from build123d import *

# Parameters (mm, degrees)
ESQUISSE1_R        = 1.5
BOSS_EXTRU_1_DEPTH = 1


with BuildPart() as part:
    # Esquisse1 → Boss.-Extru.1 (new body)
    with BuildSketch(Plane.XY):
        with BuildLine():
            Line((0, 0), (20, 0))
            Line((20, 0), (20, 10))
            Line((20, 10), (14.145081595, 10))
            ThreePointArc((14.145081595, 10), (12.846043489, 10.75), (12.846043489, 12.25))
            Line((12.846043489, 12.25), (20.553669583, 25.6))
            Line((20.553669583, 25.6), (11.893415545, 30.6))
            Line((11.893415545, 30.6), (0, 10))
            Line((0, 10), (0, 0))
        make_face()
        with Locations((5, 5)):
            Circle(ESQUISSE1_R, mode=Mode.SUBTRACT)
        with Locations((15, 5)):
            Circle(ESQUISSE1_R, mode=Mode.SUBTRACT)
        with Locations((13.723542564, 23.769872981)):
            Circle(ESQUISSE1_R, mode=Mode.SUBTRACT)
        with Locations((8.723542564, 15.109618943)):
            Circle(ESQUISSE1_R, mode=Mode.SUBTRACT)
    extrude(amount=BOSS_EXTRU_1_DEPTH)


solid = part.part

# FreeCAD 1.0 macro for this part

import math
import FreeCAD as App
import Part
import Sketcher
Q = App.Units.Quantity

doc = App.newDocument("Part")
params = doc.addObject("Spreadsheet::Sheet", "Params")
for row, (alias, value) in enumerate([
    ("sketch1_diameter", "3 mm"),
    ("sketch1_width", "20 mm"),
    ("sketch1_height", "10 mm"),
    ("sketch1_length", "10 mm"),
    ("pad1_length", "1 mm"),
], start=1):
    params.set(f"A{row}", alias)
    params.set(f"B{row}", "=" + value)
    params.setAlias(f"B{row}", alias)

body = doc.addObject("PartDesign::Body", "Body")

# Sketch on XY plane
sketch1 = body.newObject("Sketcher::SketchObject", "Sketch")
sketch1.AttachmentSupport = (doc.getObject("XY_Plane"), [""])
sketch1.MapMode = "FlatFace"
sketch1.addGeometry(Part.LineSegment(App.Vector(0, 0, 0), App.Vector(20, 0, 0)), False)
sketch1.addGeometry(Part.LineSegment(App.Vector(20, 0, 0), App.Vector(20, 10, 0)), False)
sketch1.addGeometry(Part.LineSegment(App.Vector(20, 10, 0), App.Vector(14.1, 10, 0)), False)
sketch1.addGeometry(Part.ArcOfCircle(Part.Circle(App.Vector(14.1, 11.5, 0), App.Vector(0, 0, 1), 1.5), math.radians(150), math.radians(270)), False)
sketch1.addGeometry(Part.LineSegment(App.Vector(12.8, 12.2, 0), App.Vector(20.6, 25.6, 0)), False)
sketch1.addGeometry(Part.LineSegment(App.Vector(20.6, 25.6, 0), App.Vector(11.9, 30.6, 0)), False)
sketch1.addGeometry(Part.LineSegment(App.Vector(11.9, 30.6, 0), App.Vector(0, 10, 0)), False)
sketch1.addGeometry(Part.LineSegment(App.Vector(0, 10, 0), App.Vector(0, 0, 0)), False)
sketch1.addGeometry(Part.Circle(App.Vector(5, 5, 0), App.Vector(0, 0, 1), 1.5), False)
sketch1.addGeometry(Part.Circle(App.Vector(15, 5, 0), App.Vector(0, 0, 1), 1.5), False)
sketch1.addGeometry(Part.Circle(App.Vector(8.7, 15.1, 0), App.Vector(0, 0, 1), 1.5), False)
sketch1.addGeometry(Part.Circle(App.Vector(13.7, 23.8, 0), App.Vector(0, 0, 1), 1.5), False)
sketch1.addConstraint(Sketcher.Constraint("Coincident", 0, 2, 1, 1))
sketch1.addConstraint(Sketcher.Constraint("Coincident", 1, 2, 2, 1))
sketch1.addConstraint(Sketcher.Constraint("Tangent", 2, 2, 3, 2))
sketch1.addConstraint(Sketcher.Constraint("Tangent", 3, 1, 4, 1))
sketch1.addConstraint(Sketcher.Constraint("Coincident", 4, 2, 5, 1))
sketch1.addConstraint(Sketcher.Constraint("Coincident", 5, 2, 6, 1))
sketch1.addConstraint(Sketcher.Constraint("Coincident", 6, 2, 7, 1))
sketch1.addConstraint(Sketcher.Constraint("Coincident", 7, 2, 0, 1))
sketch1.addConstraint(Sketcher.Constraint("Horizontal", 0))
sketch1.addConstraint(Sketcher.Constraint("Vertical", 1))
sketch1.addConstraint(Sketcher.Constraint("Horizontal", 2))
sketch1.addConstraint(Sketcher.Constraint("Vertical", 7))
sketch1.addConstraint(Sketcher.Constraint("Coincident", 7, 2, -1, 1))
sketch1.addConstraint(Sketcher.Constraint("Equal", 3, 8))
sketch1.addConstraint(Sketcher.Constraint("Equal", 8, 9))
sketch1.addConstraint(Sketcher.Constraint("Equal", 9, 10))
sketch1.addConstraint(Sketcher.Constraint("Equal", 10, 11))
sketch1.addConstraint(Sketcher.Constraint("Perpendicular", 4, 5))
sketch1.addConstraint(Sketcher.Constraint("Perpendicular", 5, 6))
sketch1.addConstraint(Sketcher.Constraint("Horizontal", 8, 3, 9, 3))
sketch1.addConstraint(Sketcher.Constraint("Horizontal", 2, 2, 6, 2))
sketch1.addConstraint(Sketcher.Constraint("Diameter", 8, 3.0))
sketch1.addConstraint(Sketcher.Constraint("DistanceX", 0, 1, 0, 2, 20.0))
sketch1.addConstraint(Sketcher.Constraint("DistanceY", 1, 1, 1, 2, 10.0))
sketch1.addConstraint(Sketcher.Constraint("Angle", 4, Q("60 deg")))
sketch1.addConstraint(Sketcher.Constraint("Distance", 5, 10.0))
sketch1.addConstraint(Sketcher.Constraint("DistanceX", -1, 1, 8, 3, 5.0))
sketch1.addConstraint(Sketcher.Constraint("DistanceY", -1, 1, 8, 3, 5.0))
sketch1.addConstraint(Sketcher.Constraint("DistanceX", -1, 1, 9, 3, 15.0))
sketch1.addConstraint(Sketcher.Constraint("DistanceX", 10, 3, 11, 3, 5.0))
sketch1.addConstraint(Sketcher.Constraint("DistanceY", -1, 1, 4, 2, 25.6))
sketch1.addConstraint(Sketcher.Constraint("DistanceX", 10, 3, 3, 1, 4.122501))
sketch1.addConstraint(Sketcher.Constraint("DistanceY", -1, 1, 10, 3, 15.109619))
sketch1.addConstraint(Sketcher.Constraint("DistanceY", -1, 1, 11, 3, 23.769873))
sketch1.setExpression("Constraints[21]", "Params.sketch1_diameter")
sketch1.setExpression("Constraints[22]", "Params.sketch1_width")
sketch1.setExpression("Constraints[23]", "Params.sketch1_height")
sketch1.setExpression("Constraints[25]", "Params.sketch1_length")
pad1 = body.newObject("PartDesign::Pad", "Pad")
pad1.Profile = sketch1
pad1.setExpression("Length", "Params.pad1_length")

doc.recompute()
